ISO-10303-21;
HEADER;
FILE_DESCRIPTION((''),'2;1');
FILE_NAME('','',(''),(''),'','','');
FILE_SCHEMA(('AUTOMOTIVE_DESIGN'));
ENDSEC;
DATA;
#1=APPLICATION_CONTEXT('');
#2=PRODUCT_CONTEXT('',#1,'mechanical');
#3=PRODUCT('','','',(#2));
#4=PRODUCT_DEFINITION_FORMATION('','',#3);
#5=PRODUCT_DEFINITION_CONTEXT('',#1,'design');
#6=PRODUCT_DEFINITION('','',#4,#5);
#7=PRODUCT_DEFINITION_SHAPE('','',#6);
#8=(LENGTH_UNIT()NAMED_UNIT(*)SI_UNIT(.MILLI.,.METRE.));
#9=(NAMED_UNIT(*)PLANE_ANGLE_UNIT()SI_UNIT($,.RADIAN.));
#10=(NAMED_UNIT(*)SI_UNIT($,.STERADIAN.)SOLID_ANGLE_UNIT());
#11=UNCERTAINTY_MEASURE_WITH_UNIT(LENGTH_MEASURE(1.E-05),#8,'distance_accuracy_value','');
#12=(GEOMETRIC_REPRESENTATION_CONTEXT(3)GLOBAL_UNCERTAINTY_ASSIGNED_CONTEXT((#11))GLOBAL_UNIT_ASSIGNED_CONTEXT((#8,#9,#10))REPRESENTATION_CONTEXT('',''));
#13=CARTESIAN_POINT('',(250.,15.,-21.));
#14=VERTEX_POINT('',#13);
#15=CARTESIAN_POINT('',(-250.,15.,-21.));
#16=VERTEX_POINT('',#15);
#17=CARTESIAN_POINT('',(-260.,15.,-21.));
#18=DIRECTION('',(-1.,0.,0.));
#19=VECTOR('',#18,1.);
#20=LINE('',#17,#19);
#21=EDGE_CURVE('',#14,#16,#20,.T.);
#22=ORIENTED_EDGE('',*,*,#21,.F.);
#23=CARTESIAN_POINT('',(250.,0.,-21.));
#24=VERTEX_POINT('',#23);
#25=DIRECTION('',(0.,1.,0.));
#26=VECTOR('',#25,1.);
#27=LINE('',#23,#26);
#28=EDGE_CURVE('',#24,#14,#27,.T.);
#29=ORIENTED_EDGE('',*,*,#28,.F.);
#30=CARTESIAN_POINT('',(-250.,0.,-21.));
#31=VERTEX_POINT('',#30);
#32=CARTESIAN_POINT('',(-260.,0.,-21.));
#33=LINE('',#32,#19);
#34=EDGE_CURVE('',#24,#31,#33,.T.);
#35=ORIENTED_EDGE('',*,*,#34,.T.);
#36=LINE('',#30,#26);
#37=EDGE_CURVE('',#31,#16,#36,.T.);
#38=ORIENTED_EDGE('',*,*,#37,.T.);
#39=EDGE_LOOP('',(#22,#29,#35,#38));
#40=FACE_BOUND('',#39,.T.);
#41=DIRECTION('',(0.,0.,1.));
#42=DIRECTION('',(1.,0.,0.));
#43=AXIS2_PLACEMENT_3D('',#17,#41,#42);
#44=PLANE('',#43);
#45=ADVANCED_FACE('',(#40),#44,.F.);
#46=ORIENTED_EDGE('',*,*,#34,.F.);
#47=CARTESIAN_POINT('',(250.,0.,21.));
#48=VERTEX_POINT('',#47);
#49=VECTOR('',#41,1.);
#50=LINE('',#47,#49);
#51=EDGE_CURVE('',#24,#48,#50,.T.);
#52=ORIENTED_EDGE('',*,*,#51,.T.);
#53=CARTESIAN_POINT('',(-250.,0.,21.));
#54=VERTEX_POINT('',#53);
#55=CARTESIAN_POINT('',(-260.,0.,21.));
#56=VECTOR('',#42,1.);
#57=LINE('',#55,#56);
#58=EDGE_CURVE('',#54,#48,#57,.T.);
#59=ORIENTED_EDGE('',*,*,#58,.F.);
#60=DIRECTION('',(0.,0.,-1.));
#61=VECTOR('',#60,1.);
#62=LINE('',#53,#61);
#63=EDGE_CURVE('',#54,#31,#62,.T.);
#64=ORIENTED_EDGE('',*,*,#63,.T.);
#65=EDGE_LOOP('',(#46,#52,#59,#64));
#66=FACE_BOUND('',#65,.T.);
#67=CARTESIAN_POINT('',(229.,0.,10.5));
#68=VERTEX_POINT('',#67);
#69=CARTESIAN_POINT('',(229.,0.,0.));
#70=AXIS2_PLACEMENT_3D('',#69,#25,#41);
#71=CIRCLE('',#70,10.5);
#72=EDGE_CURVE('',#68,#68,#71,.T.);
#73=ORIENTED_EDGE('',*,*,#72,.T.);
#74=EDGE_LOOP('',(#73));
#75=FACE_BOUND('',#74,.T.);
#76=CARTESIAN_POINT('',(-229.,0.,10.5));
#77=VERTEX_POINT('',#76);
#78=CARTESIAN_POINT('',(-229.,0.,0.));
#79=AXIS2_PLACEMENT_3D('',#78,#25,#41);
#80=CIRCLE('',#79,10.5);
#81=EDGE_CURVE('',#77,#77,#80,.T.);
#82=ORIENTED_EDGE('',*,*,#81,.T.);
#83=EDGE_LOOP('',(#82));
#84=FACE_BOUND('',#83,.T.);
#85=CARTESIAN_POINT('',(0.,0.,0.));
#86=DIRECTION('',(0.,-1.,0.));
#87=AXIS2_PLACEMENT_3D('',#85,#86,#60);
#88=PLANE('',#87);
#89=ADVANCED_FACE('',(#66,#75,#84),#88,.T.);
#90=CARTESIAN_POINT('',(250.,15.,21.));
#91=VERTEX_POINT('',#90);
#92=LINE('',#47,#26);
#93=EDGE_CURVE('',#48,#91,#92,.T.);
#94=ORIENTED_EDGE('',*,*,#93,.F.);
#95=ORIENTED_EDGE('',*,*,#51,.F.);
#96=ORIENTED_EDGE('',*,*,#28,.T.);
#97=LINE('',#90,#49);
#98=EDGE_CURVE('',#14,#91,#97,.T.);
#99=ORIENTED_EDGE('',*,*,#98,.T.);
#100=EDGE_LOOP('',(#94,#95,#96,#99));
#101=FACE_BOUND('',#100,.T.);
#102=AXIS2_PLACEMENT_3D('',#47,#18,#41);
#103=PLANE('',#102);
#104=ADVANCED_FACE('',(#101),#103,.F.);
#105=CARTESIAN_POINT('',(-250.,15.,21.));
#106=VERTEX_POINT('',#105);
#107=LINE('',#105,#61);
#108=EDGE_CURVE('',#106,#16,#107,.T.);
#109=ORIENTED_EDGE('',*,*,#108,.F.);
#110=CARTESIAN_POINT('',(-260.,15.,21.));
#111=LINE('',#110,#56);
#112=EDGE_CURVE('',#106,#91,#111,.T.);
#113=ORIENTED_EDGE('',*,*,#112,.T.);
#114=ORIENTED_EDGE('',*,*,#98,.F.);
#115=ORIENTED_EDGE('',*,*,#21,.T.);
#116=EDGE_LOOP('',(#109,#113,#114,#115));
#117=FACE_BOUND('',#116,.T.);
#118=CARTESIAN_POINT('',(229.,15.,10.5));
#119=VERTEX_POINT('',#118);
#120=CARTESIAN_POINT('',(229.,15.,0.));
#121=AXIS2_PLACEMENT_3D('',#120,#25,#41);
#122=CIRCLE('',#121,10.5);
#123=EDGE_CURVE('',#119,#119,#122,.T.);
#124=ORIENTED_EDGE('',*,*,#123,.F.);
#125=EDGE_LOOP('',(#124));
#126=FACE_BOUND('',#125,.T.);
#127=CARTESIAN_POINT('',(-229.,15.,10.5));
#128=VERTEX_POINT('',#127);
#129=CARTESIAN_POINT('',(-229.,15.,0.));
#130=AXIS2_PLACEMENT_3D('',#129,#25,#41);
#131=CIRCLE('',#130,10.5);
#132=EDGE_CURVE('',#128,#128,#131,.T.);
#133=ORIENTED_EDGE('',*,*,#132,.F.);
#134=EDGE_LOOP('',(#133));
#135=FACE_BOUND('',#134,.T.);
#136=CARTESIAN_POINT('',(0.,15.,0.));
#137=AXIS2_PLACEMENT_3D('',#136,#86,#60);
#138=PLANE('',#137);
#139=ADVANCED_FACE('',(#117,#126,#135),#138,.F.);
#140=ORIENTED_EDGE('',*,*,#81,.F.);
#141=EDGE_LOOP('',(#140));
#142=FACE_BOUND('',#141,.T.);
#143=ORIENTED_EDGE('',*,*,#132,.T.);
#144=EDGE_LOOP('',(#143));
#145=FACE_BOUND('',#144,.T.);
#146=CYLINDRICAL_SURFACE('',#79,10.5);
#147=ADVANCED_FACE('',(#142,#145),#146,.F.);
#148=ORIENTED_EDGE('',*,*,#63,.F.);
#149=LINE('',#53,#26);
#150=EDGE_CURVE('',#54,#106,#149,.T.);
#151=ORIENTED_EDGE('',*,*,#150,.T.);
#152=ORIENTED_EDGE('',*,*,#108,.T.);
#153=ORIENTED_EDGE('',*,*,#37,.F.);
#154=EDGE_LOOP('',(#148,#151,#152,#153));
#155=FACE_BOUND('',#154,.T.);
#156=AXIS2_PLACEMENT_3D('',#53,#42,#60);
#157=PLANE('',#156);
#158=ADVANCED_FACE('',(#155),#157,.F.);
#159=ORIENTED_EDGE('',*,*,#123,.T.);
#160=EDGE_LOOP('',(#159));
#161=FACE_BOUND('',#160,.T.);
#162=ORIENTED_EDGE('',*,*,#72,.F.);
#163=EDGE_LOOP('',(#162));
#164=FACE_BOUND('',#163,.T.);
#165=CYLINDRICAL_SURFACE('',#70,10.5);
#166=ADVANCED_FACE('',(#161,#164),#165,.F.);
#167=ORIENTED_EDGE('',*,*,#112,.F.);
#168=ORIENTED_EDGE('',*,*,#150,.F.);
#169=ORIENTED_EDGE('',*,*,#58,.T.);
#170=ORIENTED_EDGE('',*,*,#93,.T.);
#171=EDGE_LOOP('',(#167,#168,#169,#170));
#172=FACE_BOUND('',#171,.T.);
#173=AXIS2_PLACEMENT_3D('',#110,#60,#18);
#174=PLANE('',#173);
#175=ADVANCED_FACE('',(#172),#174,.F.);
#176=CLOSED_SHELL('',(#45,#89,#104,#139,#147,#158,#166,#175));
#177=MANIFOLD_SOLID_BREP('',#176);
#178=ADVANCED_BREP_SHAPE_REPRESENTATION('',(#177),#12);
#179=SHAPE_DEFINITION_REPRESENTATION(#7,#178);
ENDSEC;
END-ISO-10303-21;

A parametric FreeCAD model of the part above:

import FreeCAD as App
import Part
import Sketcher

V = App.Vector
Q = App.Units.Quantity

doc = App.newDocument("Part")
body = doc.addObject("PartDesign::Body", "Body")

# Sketch on XZ plane
sketch1 = body.newObject("Sketcher::SketchObject", "Sketch")
sketch1.AttachmentSupport = (doc.getObject("XZ_Plane"), [""])
sketch1.MapMode = "FlatFace"
sketch1.addGeometry(Part.LineSegment(V(-260, -21, 0), V(-260, 21, 0)), False)
sketch1.addGeometry(Part.LineSegment(V(-260, 21, 0), V(260, 21, 0)), False)
sketch1.addGeometry(Part.LineSegment(V(260, 21, 0), V(260, -21, 0)), False)
sketch1.addGeometry(Part.LineSegment(V(260, -21, 0), V(-260, -21, 0)), False)
sketch1.addConstraint(Sketcher.Constraint("Coincident", 0, 2, 1, 1))
sketch1.addConstraint(Sketcher.Constraint("Coincident", 1, 2, 2, 1))
sketch1.addConstraint(Sketcher.Constraint("Coincident", 2, 2, 3, 1))
sketch1.addConstraint(Sketcher.Constraint("Coincident", 3, 2, 0, 1))
sketch1.addConstraint(Sketcher.Constraint("Vertical", 0))
sketch1.addConstraint(Sketcher.Constraint("Horizontal", 1))
sketch1.addConstraint(Sketcher.Constraint("Vertical", 2))
sketch1.addConstraint(Sketcher.Constraint("Horizontal", 3))
sketch1.addConstraint(Sketcher.Constraint("Symmetric", 0, 2, 2, 2, -1, 1))
sketch1.addConstraint(Sketcher.Constraint("DistanceX", 1, 1, 1, 2, Q("520 mm")))
sketch1.addConstraint(Sketcher.Constraint("DistanceY", 0, 1, 0, 2, Q("42 mm")))
pad1 = body.newObject("PartDesign::Pad", "Pad")
pad1.Profile = sketch1
pad1.Length = 15
pad1.Reversed = True

# Sketch on XZ plane
sketch2 = body.newObject("Sketcher::SketchObject", "Sketch001")
sketch2.AttachmentSupport = (doc.getObject("XZ_Plane"), [""])
sketch2.MapMode = "FlatFace"
sketch2.AttachmentOffset = App.Placement(V(0, 0, -15), App.Rotation())
sketch2.addGeometry(Part.Circle(V(-229, 0, 0), V(0, 0, 1), 10), False)
sketch2.addGeometry(Part.Circle(V(229, 0, 0), V(0, 0, 1), 10), False)
sketch2.addConstraint(Sketcher.Constraint("Equal", 0, 1))
sketch2.addConstraint(Sketcher.Constraint("Symmetric", 0, 3, 1, 3, -1, 1))
sketch2.addConstraint(Sketcher.Constraint("PointOnObject", 0, 3, -1))
sketch2.addConstraint(Sketcher.Constraint("Diameter", 0, Q("21 mm")))
sketch2.addConstraint(Sketcher.Constraint("DistanceX", 0, 3, -1, 1, Q("229 mm")))
pocket1 = body.newObject("PartDesign::Pocket", "Pocket")
pocket1.Profile = sketch2
pocket1.Length = 15
pocket1.Reversed = True

# Sketch on XZ plane
sketch3 = body.newObject("Sketcher::SketchObject", "Sketch002")
sketch3.AttachmentSupport = (doc.getObject("XZ_Plane"), [""])
sketch3.MapMode = "FlatFace"
sketch3.AttachmentOffset = App.Placement(V(0, 0, -15), App.Rotation())
sketch3.addGeometry(Part.LineSegment(V(-260, -21, 0), V(-260, 21, 0)), False)
sketch3.addGeometry(Part.LineSegment(V(-260, 21, 0), V(-250, 21, 0)), False)
sketch3.addGeometry(Part.LineSegment(V(-250, 21, 0), V(-250, -21, 0)), False)
sketch3.addGeometry(Part.LineSegment(V(-250, -21, 0), V(-260, -21, 0)), False)
sketch3.addGeometry(Part.LineSegment(V(250, -21, 0), V(250, 21, 0)), False)
sketch3.addGeometry(Part.LineSegment(V(250, 21, 0), V(260, 21, 0)), False)
sketch3.addGeometry(Part.LineSegment(V(260, 21, 0), V(260, -21, 0)), False)
sketch3.addGeometry(Part.LineSegment(V(260, -21, 0), V(250, -21, 0)), False)
sketch3.addConstraint(Sketcher.Constraint("Coincident", 0, 2, 1, 1))
sketch3.addConstraint(Sketcher.Constraint("Coincident", 1, 2, 2, 1))
sketch3.addConstraint(Sketcher.Constraint("Coincident", 2, 2, 3, 1))
sketch3.addConstraint(Sketcher.Constraint("Coincident", 3, 2, 0, 1))
sketch3.addConstraint(Sketcher.Constraint("Coincident", 4, 2, 5, 1))
sketch3.addConstraint(Sketcher.Constraint("Coincident", 5, 2, 6, 1))
sketch3.addConstraint(Sketcher.Constraint("Coincident", 6, 2, 7, 1))
sketch3.addConstraint(Sketcher.Constraint("Coincident", 7, 2, 4, 1))
sketch3.addConstraint(Sketcher.Constraint("Vertical", 0))
sketch3.addConstraint(Sketcher.Constraint("Horizontal", 1))
sketch3.addConstraint(Sketcher.Constraint("Vertical", 2))
sketch3.addConstraint(Sketcher.Constraint("Horizontal", 3))
sketch3.addConstraint(Sketcher.Constraint("Vertical", 4))
sketch3.addConstraint(Sketcher.Constraint("Horizontal", 5))
sketch3.addConstraint(Sketcher.Constraint("Vertical", 6))
sketch3.addConstraint(Sketcher.Constraint("Horizontal", 7))
sketch3.addConstraint(Sketcher.Constraint("Symmetric", 2, 2, 4, 2, -1, 1))
sketch3.addConstraint(Sketcher.Constraint("Symmetric", 0, 2, 6, 2, -1, 1))
sketch3.addConstraint(Sketcher.Constraint("Horizontal", 1, 2, 4, 2))
sketch3.addConstraint(Sketcher.Constraint("DistanceX", 1, 1, 1, 2, Q("10 mm")))
sketch3.addConstraint(Sketcher.Constraint("DistanceY", 0, 1, 0, 2, Q("42 mm")))
sketch3.addConstraint(Sketcher.Constraint("DistanceX", 0, 2, -1, 1, Q("260 mm")))
pocket2 = body.newObject("PartDesign::Pocket", "Pocket001")
pocket2.Profile = sketch3
pocket2.Type = "ThroughAll"
pocket2.Reversed = True

doc.recompute()
